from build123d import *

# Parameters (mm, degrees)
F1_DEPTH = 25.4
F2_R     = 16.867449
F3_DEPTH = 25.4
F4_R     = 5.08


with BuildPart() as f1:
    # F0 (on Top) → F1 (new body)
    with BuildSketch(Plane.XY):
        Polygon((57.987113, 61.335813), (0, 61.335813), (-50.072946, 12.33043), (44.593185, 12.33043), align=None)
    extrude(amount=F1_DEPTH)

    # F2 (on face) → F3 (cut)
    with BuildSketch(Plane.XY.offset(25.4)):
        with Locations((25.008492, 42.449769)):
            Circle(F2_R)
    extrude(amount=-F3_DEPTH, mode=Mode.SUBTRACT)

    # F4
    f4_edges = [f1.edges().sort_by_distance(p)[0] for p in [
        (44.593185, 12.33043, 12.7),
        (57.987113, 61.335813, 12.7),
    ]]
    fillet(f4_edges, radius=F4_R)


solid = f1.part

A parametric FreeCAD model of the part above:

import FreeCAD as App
import Part
import Sketcher
from FreeCAD import Vector
Q = App.Units.Quantity


def edges_at(feature, points):
    """Names of the edges that pass closest to the given points."""
    edges = feature.Shape.Edges
    near = lambda p: min(range(len(edges)), key=lambda i: edges[i].distToShape(Part.Vertex(*p))[0])
    return sorted({f"Edge{near(p) + 1}" for p in points})

doc = App.newDocument("Part")
body = doc.addObject("PartDesign::Body", "Body")

sketch1 = body.newObject("Sketcher::SketchObject", "Sketch")
sketch1.AttachmentSupport = (doc.getObject("XY_Plane"), [""])
sketch1.MapMode = "FlatFace"
sketch1.addGeometry(Part.LineSegment(Vector(58, 61, 0), Vector(0, 61, 0)), False)
sketch1.addGeometry(Part.LineSegment(Vector(0, 61, 0), Vector(-50, 12, 0)), False)
sketch1.addGeometry(Part.LineSegment(Vector(-50, 12, 0), Vector(45, 12, 0)), False)
sketch1.addGeometry(Part.LineSegment(Vector(45, 12, 0), Vector(58, 61, 0)), False)
sketch1.addConstraint(Sketcher.Constraint("Coincident", 0, 2, 1, 1))
sketch1.addConstraint(Sketcher.Constraint("Coincident", 1, 2, 2, 1))
sketch1.addConstraint(Sketcher.Constraint("Coincident", 2, 2, 3, 1))
sketch1.addConstraint(Sketcher.Constraint("Coincident", 3, 2, 0, 1))
sketch1.addConstraint(Sketcher.Constraint("Horizontal", 0))
sketch1.addConstraint(Sketcher.Constraint("Horizontal", 2))
sketch1.addConstraint(Sketcher.Constraint("PointOnObject", 0, 2, -2))
sketch1.addConstraint(Sketcher.Constraint("DistanceX", 2, 1, 2, 2, Q("94.666131 mm")))
sketch1.addConstraint(Sketcher.Constraint("DistanceX", 0, 2, 0, 1, Q("57.987113 mm")))
sketch1.addConstraint(Sketcher.Constraint("DistanceY", -1, 1, 1, 2, Q("12.33043 mm")))
sketch1.addConstraint(Sketcher.Constraint("DistanceX", 2, 2, 3, 2, Q("13.393928 mm")))
sketch1.addConstraint(Sketcher.Constraint("Distance", 1, Q("70.063025 mm")))
pad1 = body.newObject("PartDesign::Pad", "Pad")
pad1.Profile = sketch1
pad1.Length = Q("1 in")

sketch2 = body.newObject("Sketcher::SketchObject", "Sketch001")
sketch2.AttachmentSupport = (doc.getObject("XY_Plane"), [""])
sketch2.MapMode = "FlatFace"
sketch2.AttachmentOffset = App.Placement(Vector(0, 0, 1 * 25.4), App.Rotation())
sketch2.addGeometry(Part.Circle(Vector(25, 42, 0), Vector(0, 0, 1), 17), False)
sketch2.addConstraint(Sketcher.Constraint("Diameter", 0, Q("33.734898 mm")))
sketch2.addConstraint(Sketcher.Constraint("DistanceY", -1, 1, 0, 3, Q("42.449769 mm")))
sketch2.addConstraint(Sketcher.Constraint("DistanceX", -1, 1, 0, 3, Q("25.008492 mm")))
pocket1 = body.newObject("PartDesign::Pocket", "Pocket")
pocket1.Profile = sketch2
pocket1.Length = Q("1 in")
doc.recompute()

fillet = body.newObject("PartDesign::Fillet", "Fillet")
fillet.Base = (pocket1, edges_at(pocket1, [(44.593, 12.33, 12.7), (57.987, 61.336, 12.7)]))
fillet.Radius = Q("0.2 in")

doc.recompute()
